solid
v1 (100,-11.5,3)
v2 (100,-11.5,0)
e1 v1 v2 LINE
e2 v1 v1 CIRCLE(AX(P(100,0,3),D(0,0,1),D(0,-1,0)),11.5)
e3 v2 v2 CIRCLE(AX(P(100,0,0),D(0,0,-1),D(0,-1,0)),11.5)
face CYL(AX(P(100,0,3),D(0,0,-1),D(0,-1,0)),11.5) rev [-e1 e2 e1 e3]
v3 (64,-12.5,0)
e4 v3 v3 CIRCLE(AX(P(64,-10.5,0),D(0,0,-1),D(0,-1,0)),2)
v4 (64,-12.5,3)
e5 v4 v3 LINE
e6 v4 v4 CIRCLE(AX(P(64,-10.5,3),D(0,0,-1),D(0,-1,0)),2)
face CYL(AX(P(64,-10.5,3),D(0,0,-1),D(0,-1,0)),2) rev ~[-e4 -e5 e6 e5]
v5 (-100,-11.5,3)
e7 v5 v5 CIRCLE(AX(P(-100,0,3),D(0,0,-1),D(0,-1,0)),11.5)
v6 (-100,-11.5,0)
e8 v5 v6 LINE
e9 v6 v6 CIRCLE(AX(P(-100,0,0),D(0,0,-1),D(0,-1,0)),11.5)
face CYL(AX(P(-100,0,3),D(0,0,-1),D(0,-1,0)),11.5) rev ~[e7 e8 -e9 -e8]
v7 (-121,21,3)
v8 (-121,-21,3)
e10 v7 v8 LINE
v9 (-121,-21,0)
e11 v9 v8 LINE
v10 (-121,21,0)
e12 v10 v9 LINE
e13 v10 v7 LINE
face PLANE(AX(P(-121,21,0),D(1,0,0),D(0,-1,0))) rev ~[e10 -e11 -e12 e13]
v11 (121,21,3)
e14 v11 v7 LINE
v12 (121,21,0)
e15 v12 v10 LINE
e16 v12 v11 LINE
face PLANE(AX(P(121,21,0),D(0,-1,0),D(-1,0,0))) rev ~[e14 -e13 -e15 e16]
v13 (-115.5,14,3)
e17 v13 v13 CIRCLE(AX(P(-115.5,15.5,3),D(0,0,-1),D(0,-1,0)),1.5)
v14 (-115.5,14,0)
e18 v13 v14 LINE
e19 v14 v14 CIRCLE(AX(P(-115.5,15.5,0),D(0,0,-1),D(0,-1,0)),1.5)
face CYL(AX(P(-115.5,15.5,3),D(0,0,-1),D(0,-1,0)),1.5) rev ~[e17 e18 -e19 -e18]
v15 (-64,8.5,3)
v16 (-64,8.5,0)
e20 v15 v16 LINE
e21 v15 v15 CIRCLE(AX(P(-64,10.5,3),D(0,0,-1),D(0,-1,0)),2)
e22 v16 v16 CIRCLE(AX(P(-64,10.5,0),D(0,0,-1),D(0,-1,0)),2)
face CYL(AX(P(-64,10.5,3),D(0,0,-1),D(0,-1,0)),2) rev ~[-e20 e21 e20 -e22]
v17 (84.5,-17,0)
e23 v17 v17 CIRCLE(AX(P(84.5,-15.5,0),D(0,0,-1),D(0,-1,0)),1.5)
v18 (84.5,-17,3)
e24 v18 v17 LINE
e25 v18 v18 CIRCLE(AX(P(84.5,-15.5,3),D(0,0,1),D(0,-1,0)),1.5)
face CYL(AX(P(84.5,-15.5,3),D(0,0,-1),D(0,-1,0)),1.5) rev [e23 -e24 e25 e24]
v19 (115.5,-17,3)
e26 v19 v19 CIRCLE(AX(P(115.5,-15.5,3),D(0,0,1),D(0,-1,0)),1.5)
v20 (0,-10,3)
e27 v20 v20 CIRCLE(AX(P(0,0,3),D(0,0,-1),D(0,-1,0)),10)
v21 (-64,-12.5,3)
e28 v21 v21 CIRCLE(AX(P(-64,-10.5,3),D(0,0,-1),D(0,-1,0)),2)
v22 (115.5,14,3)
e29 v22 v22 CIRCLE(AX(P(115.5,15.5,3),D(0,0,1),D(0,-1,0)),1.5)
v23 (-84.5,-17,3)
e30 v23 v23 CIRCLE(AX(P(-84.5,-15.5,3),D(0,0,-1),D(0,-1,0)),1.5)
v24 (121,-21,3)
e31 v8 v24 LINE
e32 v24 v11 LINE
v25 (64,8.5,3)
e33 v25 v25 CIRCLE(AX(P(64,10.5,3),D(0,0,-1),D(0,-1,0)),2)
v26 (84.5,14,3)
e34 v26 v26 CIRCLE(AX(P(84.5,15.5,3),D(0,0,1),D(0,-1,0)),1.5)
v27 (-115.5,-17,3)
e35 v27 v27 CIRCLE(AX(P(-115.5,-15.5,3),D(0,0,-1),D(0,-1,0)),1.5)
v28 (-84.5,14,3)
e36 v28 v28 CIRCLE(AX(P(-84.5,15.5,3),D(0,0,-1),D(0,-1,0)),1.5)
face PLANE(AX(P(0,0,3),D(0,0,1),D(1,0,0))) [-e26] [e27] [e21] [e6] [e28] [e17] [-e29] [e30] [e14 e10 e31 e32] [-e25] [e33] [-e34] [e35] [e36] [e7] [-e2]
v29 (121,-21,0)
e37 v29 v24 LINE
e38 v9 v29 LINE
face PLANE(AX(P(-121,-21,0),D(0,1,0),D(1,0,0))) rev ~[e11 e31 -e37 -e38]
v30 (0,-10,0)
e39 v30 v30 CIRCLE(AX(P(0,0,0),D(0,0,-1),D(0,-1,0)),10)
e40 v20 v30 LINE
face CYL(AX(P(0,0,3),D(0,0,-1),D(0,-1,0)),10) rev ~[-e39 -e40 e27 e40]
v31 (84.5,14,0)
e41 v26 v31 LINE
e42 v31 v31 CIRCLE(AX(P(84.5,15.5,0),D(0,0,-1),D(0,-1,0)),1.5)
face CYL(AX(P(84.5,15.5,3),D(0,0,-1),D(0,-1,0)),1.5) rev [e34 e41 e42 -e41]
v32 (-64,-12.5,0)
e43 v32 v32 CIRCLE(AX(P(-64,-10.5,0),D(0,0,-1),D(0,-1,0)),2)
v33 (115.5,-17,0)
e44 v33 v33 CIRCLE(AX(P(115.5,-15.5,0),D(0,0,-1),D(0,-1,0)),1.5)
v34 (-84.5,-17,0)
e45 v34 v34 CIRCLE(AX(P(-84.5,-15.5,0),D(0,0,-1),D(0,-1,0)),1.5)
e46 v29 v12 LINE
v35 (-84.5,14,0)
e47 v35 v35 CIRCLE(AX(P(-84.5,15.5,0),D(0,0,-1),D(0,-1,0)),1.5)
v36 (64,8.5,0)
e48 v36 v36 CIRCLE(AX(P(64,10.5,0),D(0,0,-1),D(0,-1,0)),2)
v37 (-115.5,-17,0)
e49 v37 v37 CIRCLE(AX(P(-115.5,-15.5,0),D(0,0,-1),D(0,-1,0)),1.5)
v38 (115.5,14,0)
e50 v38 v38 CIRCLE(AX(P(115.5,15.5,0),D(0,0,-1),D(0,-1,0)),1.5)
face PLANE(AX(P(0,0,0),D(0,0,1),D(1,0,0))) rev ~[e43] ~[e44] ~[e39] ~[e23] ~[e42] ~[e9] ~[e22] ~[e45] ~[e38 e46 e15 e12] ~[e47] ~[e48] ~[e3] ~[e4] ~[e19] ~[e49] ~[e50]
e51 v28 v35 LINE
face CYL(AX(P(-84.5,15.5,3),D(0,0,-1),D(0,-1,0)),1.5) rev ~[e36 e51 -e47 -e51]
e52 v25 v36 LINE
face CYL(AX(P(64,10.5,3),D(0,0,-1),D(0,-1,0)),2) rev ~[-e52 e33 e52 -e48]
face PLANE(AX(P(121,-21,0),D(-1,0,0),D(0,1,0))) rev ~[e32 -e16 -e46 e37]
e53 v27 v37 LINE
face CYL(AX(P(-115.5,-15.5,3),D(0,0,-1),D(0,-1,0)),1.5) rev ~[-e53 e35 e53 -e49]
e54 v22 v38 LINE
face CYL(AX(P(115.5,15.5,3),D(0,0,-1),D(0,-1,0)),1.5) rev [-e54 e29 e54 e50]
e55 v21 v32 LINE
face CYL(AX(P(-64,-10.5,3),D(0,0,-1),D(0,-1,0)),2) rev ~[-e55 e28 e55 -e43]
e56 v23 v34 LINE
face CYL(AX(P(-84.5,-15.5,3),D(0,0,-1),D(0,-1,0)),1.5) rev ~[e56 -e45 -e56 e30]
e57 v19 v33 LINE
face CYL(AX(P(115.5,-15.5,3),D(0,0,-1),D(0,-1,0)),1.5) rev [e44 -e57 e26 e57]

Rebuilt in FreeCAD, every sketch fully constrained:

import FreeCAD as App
import Part
import Sketcher

V = App.Vector


def add_polygon(sketch, points):
    """Adds a closed chain of lines whose ends are joined by coincident constraints."""
    first, n = sketch.GeometryCount, len(points)
    for a, b in zip(points, points[1:] + points[:1]):
        sketch.addGeometry(Part.LineSegment(App.Vector(*a, 0), App.Vector(*b, 0)), False)
    for i in range(n):
        sketch.addConstraint(Sketcher.Constraint("Coincident", first + i, 2, first + (i + 1) % n, 1))

doc = App.newDocument("Part")
params = doc.addObject("Spreadsheet::Sheet", "Params")
for row, (alias, value) in enumerate([
    ("sketch1_width", "242 mm"),
    ("sketch1_height", "42 mm"),
    ("pad1_length", "3 mm"),
    ("sketch2_diameter", "3 mm"),
    ("hole_diameter", "3 mm"),
    ("sketch3_diameter", "23 mm"),
    ("hole2_diameter", "23 mm"),
    ("sketch4_diameter", "4 mm"),
    ("hole3_diameter", "4 mm"),
    ("sketch5_diameter", "20 mm"),
    ("hole4_diameter", "20 mm"),
], start=1):
    params.set(f"A{row}", alias)
    params.set(f"B{row}", "=" + value)
    params.setAlias(f"B{row}", alias)

body = doc.addObject("PartDesign::Body", "Body")

sketch1 = body.newObject("Sketcher::SketchObject", "Sketch")
sketch1.AttachmentSupport = (doc.getObject("XY_Plane"), [""])
sketch1.MapMode = "FlatFace"
add_polygon(sketch1, [(-121, 21), (-121, -21), (121, -21), (121, 21)])
sketch1.addConstraint(Sketcher.Constraint("Vertical", 0))
sketch1.addConstraint(Sketcher.Constraint("Horizontal", 1))
sketch1.addConstraint(Sketcher.Constraint("Vertical", 2))
sketch1.addConstraint(Sketcher.Constraint("Horizontal", 3))
sketch1.addConstraint(Sketcher.Constraint("Symmetric", 0, 2, 2, 2, -1, 1))
sketch1.addConstraint(Sketcher.Constraint("DistanceX", 1, 1, 1, 2, 242.0))
sketch1.addConstraint(Sketcher.Constraint("DistanceY", 0, 2, 0, 1, 42.0))
sketch1.setExpression("Constraints[9]", "Params.sketch1_width")
sketch1.setExpression("Constraints[10]", "Params.sketch1_height")
pad1 = body.newObject("PartDesign::Pad", "Pad")
pad1.Profile = sketch1
pad1.setExpression("Length", "Params.pad1_length")

sketch2 = body.newObject("Sketcher::SketchObject", "Sketch001")
sketch2.AttachmentSupport = (doc.getObject("XY_Plane"), [""])
sketch2.MapMode = "FlatFace"
sketch2.AttachmentOffset = App.Placement(V(0, 0, 3), App.Rotation())
sketch2.addGeometry(Part.Circle(V(-115.5, 15.5, 0), V(0, 0, 1), 1.5), False)
sketch2.addGeometry(Part.Circle(V(-84.5, 15.5, 0), V(0, 0, 1), 1.5), False)
sketch2.addGeometry(Part.Circle(V(-84.5, -15.5, 0), V(0, 0, 1), 1.5), False)
sketch2.addGeometry(Part.Circle(V(-115.5, -15.5, 0), V(0, 0, 1), 1.5), False)
sketch2.addConstraint(Sketcher.Constraint("Equal", 0, 1))
sketch2.addConstraint(Sketcher.Constraint("Equal", 1, 2))
sketch2.addConstraint(Sketcher.Constraint("Equal", 2, 3))
sketch2.addConstraint(Sketcher.Constraint("Symmetric", 1, 3, 2, 3, -1))
sketch2.addConstraint(Sketcher.Constraint("Symmetric", 0, 3, 3, 3, -1))
sketch2.addConstraint(Sketcher.Constraint("Horizontal", 0, 3, 1, 3))
sketch2.addConstraint(Sketcher.Constraint("Diameter", 0, 3.0))
sketch2.addConstraint(Sketcher.Constraint("DistanceX", 0, 3, 1, 3, 31.0))
sketch2.addConstraint(Sketcher.Constraint("DistanceY", 2, 3, 1, 3, 31.0))
sketch2.addConstraint(Sketcher.Constraint("DistanceX", 0, 3, -1, 1, 115.5))
sketch2.setExpression("Constraints[6]", "Params.sketch2_diameter")
doc.recompute()
hole = body.newObject("PartDesign::Hole", "Hole")
hole.Profile = sketch2
hole.ThreadType = "None"
hole.setExpression("Diameter", "Params.hole_diameter")
hole.DepthType = "ThroughAll"

sketch3 = body.newObject("Sketcher::SketchObject", "Sketch002")
sketch3.AttachmentSupport = (doc.getObject("XY_Plane"), [""])
sketch3.MapMode = "FlatFace"
sketch3.AttachmentOffset = App.Placement(V(0, 0, 3), App.Rotation())
sketch3.addGeometry(Part.Circle(V(-100, 0, 0), V(0, 0, 1), 12), False)
sketch3.addConstraint(Sketcher.Constraint("PointOnObject", 0, 3, -1))
sketch3.addConstraint(Sketcher.Constraint("Diameter", 0, 23.0))
sketch3.addConstraint(Sketcher.Constraint("DistanceX", 0, 3, -1, 1, 100.0))
sketch3.setExpression("Constraints[1]", "Params.sketch3_diameter")
doc.recompute()
hole2 = body.newObject("PartDesign::Hole", "Hole001")
hole2.Profile = sketch3
hole2.ThreadType = "None"
hole2.setExpression("Diameter", "Params.hole2_diameter")
hole2.DepthType = "ThroughAll"
doc.recompute()

mirrored = body.newObject("PartDesign::Mirrored", "Mirrored")
mirrored.Originals = [hole, hole2]
mirrored.MirrorPlane = (doc.getObject("YZ_Plane"), [""])
body.Tip = mirrored

sketch4 = body.newObject("Sketcher::SketchObject", "Sketch003")
sketch4.AttachmentSupport = (doc.getObject("XY_Plane"), [""])
sketch4.MapMode = "FlatFace"
sketch4.AttachmentOffset = App.Placement(V(0, 0, 3), App.Rotation())
sketch4.addGeometry(Part.Circle(V(64, -10.5, 0), V(0, 0, 1), 2), False)
sketch4.addGeometry(Part.Circle(V(64, 10.5, 0), V(0, 0, 1), 2), False)
sketch4.addGeometry(Part.Circle(V(-64, 10.5, 0), V(0, 0, 1), 2), False)
sketch4.addGeometry(Part.Circle(V(-64, -10.5, 0), V(0, 0, 1), 2), False)
sketch4.addConstraint(Sketcher.Constraint("Equal", 0, 1))
sketch4.addConstraint(Sketcher.Constraint("Equal", 1, 2))
sketch4.addConstraint(Sketcher.Constraint("Equal", 2, 3))
sketch4.addConstraint(Sketcher.Constraint("Symmetric", 0, 3, 2, 3, -1, 1))
sketch4.addConstraint(Sketcher.Constraint("Symmetric", 1, 3, 3, 3, -1, 1))
sketch4.addConstraint(Sketcher.Constraint("Symmetric", 1, 3, 2, 3, -2))
sketch4.addConstraint(Sketcher.Constraint("Diameter", 0, 4.0))
sketch4.addConstraint(Sketcher.Constraint("DistanceX", -1, 1, 0, 3, 64.0))
sketch4.addConstraint(Sketcher.Constraint("DistanceY", 0, 3, 1, 3, 21.0))
sketch4.setExpression("Constraints[6]", "Params.sketch4_diameter")
doc.recompute()
hole3 = body.newObject("PartDesign::Hole", "Hole002")
hole3.Profile = sketch4
hole3.ThreadType = "None"
hole3.setExpression("Diameter", "Params.hole3_diameter")
hole3.DepthType = "ThroughAll"

sketch5 = body.newObject("Sketcher::SketchObject", "Sketch004")
sketch5.AttachmentSupport = (doc.getObject("XY_Plane"), [""])
sketch5.MapMode = "FlatFace"
sketch5.AttachmentOffset = App.Placement(V(0, 0, 3), App.Rotation())
sketch5.addGeometry(Part.Circle(V(0, 0, 0), V(0, 0, 1), 10), False)
sketch5.addConstraint(Sketcher.Constraint("Coincident", 0, 3, -1, 1))
sketch5.addConstraint(Sketcher.Constraint("Diameter", 0, 20.0))
sketch5.setExpression("Constraints[1]", "Params.sketch5_diameter")
doc.recompute()
hole4 = body.newObject("PartDesign::Hole", "Hole003")
hole4.Profile = sketch5
hole4.ThreadType = "None"
hole4.setExpression("Diameter", "Params.hole4_diameter")
hole4.DepthType = "ThroughAll"

doc.recompute()
